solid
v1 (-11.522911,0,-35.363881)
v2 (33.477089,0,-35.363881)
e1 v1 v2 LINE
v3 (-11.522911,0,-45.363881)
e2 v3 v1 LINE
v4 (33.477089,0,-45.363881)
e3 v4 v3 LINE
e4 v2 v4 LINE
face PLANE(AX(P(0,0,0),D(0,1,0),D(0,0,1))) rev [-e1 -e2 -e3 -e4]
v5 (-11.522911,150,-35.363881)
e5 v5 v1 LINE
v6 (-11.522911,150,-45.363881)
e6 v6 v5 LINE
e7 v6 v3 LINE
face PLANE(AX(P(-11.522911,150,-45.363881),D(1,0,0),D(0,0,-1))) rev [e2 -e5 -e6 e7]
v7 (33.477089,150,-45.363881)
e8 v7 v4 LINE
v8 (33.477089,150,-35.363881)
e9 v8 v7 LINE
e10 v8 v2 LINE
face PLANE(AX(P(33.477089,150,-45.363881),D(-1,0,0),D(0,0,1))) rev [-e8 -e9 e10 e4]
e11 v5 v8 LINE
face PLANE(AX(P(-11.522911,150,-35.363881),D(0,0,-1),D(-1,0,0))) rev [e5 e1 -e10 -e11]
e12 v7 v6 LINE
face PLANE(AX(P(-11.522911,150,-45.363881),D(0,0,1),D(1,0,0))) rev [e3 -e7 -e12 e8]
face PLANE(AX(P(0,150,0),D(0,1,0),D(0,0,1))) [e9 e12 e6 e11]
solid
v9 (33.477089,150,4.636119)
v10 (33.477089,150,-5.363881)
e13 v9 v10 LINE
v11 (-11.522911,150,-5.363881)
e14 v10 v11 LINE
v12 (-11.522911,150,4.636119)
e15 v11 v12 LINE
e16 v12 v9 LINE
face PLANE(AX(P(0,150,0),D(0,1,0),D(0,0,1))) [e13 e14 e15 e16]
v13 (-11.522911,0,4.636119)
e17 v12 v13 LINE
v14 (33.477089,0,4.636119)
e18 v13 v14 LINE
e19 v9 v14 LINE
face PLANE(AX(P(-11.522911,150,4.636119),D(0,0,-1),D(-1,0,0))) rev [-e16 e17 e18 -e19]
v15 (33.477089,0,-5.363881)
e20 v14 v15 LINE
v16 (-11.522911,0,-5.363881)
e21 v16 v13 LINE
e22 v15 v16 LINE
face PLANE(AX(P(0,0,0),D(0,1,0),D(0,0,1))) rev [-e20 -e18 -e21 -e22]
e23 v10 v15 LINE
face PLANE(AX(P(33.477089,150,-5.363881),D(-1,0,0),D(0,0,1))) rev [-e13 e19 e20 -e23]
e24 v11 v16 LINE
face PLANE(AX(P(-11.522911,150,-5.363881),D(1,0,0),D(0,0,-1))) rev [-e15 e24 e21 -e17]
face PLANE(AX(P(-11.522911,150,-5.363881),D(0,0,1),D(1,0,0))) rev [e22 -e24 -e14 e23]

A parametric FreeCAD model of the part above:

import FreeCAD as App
import Part
import Sketcher
Q = App.Units.Quantity


def add_polygon(sketch, points):
    """Adds a closed chain of lines whose ends are joined by coincident constraints."""
    first, n = sketch.GeometryCount, len(points)
    for a, b in zip(points, points[1:] + points[:1]):
        sketch.addGeometry(Part.LineSegment(App.Vector(*a, 0), App.Vector(*b, 0)), False)
    for i in range(n):
        sketch.addConstraint(Sketcher.Constraint("Coincident", first + i, 2, first + (i + 1) % n, 1))

doc = App.newDocument("Part")
params = doc.addObject("Spreadsheet::Sheet", "Params")
for row, (alias, value) in enumerate([
    ("sketch1_width", "45 mm"),
    ("sketch1_height", "10 mm"),
    ("pad1_length", "150 mm"),
    ("sketch2_width", "45 mm"),
    ("sketch2_height", "10 mm"),
    ("pad2_length", "150 mm"),
], start=1):
    params.set(f"A{row}", alias)
    params.set(f"B{row}", "=" + value)
    params.setAlias(f"B{row}", alias)

body = doc.addObject("PartDesign::Body", "Body")

sketch1 = doc.addObject("Sketcher::SketchObject", "Sketch")
body.addObject(sketch1)
sketch1.AttachmentSupport = (doc.XZ_Plane, [""])
sketch1.MapMode = "FlatFace"
add_polygon(sketch1, [(-11.522911, -45.363881), (-11.522911, -35.363881), (33.477089, -35.363881), (33.477089, -45.363881)])
sketch1.addConstraint([
    Sketcher.Constraint("Vertical", 0),
    Sketcher.Constraint("Horizontal", 1),
    Sketcher.Constraint("Vertical", 2),
    Sketcher.Constraint("Horizontal", 3),
    Sketcher.Constraint("DistanceX", 1, 1, 1, 2, Q("45 mm")),
    Sketcher.Constraint("DistanceY", 0, 1, 0, 2, Q("10 mm")),
    Sketcher.Constraint("DistanceX", 0, 2, -1, 1, Q("11.522911 mm")),
    Sketcher.Constraint("DistanceY", 0, 2, -1, 1, Q("35.363881 mm")),
])
sketch1.setExpression("Constraints[8]", "Params.sketch1_width")
sketch1.setExpression("Constraints[9]", "Params.sketch1_height")
pad1 = doc.addObject("PartDesign::Pad", "Pad")
body.addObject(pad1)
pad1.Profile = sketch1
pad1.setExpression("Length", "Params.pad1_length")
pad1.Reversed = True
body2 = doc.addObject("PartDesign::Body", "Body001")

sketch2 = doc.addObject("Sketcher::SketchObject", "Sketch001")
body2.addObject(sketch2)
sketch2.AttachmentSupport = (doc.getObject("XZ_Plane001"), [""])
sketch2.MapMode = "FlatFace"
add_polygon(sketch2, [(-11.522911, -5.363881), (-11.522911, 4.636119), (33.477089, 4.636119), (33.477089, -5.363881)])
sketch2.addConstraint([
    Sketcher.Constraint("Vertical", 0),
    Sketcher.Constraint("Horizontal", 1),
    Sketcher.Constraint("Vertical", 2),
    Sketcher.Constraint("Horizontal", 3),
    Sketcher.Constraint("DistanceX", 1, 1, 1, 2, Q("45 mm")),
    Sketcher.Constraint("DistanceY", 0, 1, 0, 2, Q("10 mm")),
    Sketcher.Constraint("DistanceX", 0, 2, -1, 1, Q("11.522911 mm")),
    Sketcher.Constraint("DistanceY", -1, 1, 0, 2, Q("4.636119 mm")),
])
sketch2.setExpression("Constraints[8]", "Params.sketch2_width")
sketch2.setExpression("Constraints[9]", "Params.sketch2_height")
pad2 = doc.addObject("PartDesign::Pad", "Pad001")
body2.addObject(pad2)
pad2.Profile = sketch2
pad2.setExpression("Length", "Params.pad2_length")
pad2.Reversed = True

doc.recompute()
